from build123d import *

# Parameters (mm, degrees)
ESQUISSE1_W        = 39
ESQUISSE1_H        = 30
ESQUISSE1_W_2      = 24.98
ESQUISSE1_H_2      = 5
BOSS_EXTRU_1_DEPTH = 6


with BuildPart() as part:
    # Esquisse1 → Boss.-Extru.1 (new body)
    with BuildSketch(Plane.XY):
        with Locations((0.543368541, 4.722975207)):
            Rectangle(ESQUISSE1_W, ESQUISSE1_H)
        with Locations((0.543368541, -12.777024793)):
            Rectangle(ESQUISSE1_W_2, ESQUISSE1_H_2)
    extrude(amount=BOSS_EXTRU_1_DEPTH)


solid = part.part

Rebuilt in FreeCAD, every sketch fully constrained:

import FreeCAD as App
import Part
import Sketcher

V = App.Vector
Q = App.Units.Quantity

doc = App.newDocument("Part")
body = doc.addObject("PartDesign::Body", "Body")

sketch1 = body.newObject("Sketcher::SketchObject", "Sketch")
sketch1.AttachmentSupport = (doc.getObject("XY_Plane"), [""])
sketch1.MapMode = "FlatFace"
sketch1.addGeometry(Part.LineSegment(V(-18.956631, 19.722975, 0), V(-18.956631, -10.277025, 0)), False)
sketch1.addGeometry(Part.LineSegment(V(-18.956631, -10.277025, 0), V(-11.946631, -10.277025, 0)), False)
sketch1.addGeometry(Part.LineSegment(V(-11.946631, -10.277025, 0), V(-11.946631, -15.277025, 0)), False)
sketch1.addGeometry(Part.LineSegment(V(-11.946631, -15.277025, 0), V(13.033369, -15.277025, 0)), False)
sketch1.addGeometry(Part.LineSegment(V(13.033369, -15.277025, 0), V(13.033369, -10.277025, 0)), False)
sketch1.addGeometry(Part.LineSegment(V(13.033369, -10.277025, 0), V(20.043369, -10.277025, 0)), False)
sketch1.addGeometry(Part.LineSegment(V(20.043369, -10.277025, 0), V(20.043369, 19.722975, 0)), False)
sketch1.addGeometry(Part.LineSegment(V(20.043369, 19.722975, 0), V(-18.956631, 19.722975, 0)), False)
sketch1.addConstraint(Sketcher.Constraint("Coincident", 0, 2, 1, 1))
sketch1.addConstraint(Sketcher.Constraint("Coincident", 1, 2, 2, 1))
sketch1.addConstraint(Sketcher.Constraint("Coincident", 2, 2, 3, 1))
sketch1.addConstraint(Sketcher.Constraint("Coincident", 3, 2, 4, 1))
sketch1.addConstraint(Sketcher.Constraint("Coincident", 4, 2, 5, 1))
sketch1.addConstraint(Sketcher.Constraint("Coincident", 5, 2, 6, 1))
sketch1.addConstraint(Sketcher.Constraint("Coincident", 6, 2, 7, 1))
sketch1.addConstraint(Sketcher.Constraint("Coincident", 7, 2, 0, 1))
sketch1.addConstraint(Sketcher.Constraint("Vertical", 0))
sketch1.addConstraint(Sketcher.Constraint("Horizontal", 1))
sketch1.addConstraint(Sketcher.Constraint("Vertical", 2))
sketch1.addConstraint(Sketcher.Constraint("Horizontal", 3))
sketch1.addConstraint(Sketcher.Constraint("Vertical", 4))
sketch1.addConstraint(Sketcher.Constraint("Horizontal", 5))
sketch1.addConstraint(Sketcher.Constraint("Vertical", 6))
sketch1.addConstraint(Sketcher.Constraint("Horizontal", 7))
sketch1.addConstraint(Sketcher.Constraint("Horizontal", 1, 2, 4, 2))
sketch1.addConstraint(Sketcher.Constraint("Equal", 1, 5))
sketch1.addConstraint(Sketcher.Constraint("DistanceX", 7, 2, 7, 1, Q("39 mm")))
sketch1.addConstraint(Sketcher.Constraint("DistanceY", 0, 2, 0, 1, Q("30 mm")))
sketch1.addConstraint(Sketcher.Constraint("DistanceY", 2, 2, 2, 1, Q("5 mm")))
sketch1.addConstraint(Sketcher.Constraint("DistanceX", 1, 1, 1, 2, Q("7.01 mm")))
sketch1.addConstraint(Sketcher.Constraint("DistanceX", 0, 2, -1, 1, Q("18.956631 mm")))
sketch1.addConstraint(Sketcher.Constraint("DistanceY", 0, 2, -1, 1, Q("10.277025 mm")))
pad1 = body.newObject("PartDesign::Pad", "Pad")
pad1.Profile = sketch1
pad1.Length = 6

doc.recompute()
